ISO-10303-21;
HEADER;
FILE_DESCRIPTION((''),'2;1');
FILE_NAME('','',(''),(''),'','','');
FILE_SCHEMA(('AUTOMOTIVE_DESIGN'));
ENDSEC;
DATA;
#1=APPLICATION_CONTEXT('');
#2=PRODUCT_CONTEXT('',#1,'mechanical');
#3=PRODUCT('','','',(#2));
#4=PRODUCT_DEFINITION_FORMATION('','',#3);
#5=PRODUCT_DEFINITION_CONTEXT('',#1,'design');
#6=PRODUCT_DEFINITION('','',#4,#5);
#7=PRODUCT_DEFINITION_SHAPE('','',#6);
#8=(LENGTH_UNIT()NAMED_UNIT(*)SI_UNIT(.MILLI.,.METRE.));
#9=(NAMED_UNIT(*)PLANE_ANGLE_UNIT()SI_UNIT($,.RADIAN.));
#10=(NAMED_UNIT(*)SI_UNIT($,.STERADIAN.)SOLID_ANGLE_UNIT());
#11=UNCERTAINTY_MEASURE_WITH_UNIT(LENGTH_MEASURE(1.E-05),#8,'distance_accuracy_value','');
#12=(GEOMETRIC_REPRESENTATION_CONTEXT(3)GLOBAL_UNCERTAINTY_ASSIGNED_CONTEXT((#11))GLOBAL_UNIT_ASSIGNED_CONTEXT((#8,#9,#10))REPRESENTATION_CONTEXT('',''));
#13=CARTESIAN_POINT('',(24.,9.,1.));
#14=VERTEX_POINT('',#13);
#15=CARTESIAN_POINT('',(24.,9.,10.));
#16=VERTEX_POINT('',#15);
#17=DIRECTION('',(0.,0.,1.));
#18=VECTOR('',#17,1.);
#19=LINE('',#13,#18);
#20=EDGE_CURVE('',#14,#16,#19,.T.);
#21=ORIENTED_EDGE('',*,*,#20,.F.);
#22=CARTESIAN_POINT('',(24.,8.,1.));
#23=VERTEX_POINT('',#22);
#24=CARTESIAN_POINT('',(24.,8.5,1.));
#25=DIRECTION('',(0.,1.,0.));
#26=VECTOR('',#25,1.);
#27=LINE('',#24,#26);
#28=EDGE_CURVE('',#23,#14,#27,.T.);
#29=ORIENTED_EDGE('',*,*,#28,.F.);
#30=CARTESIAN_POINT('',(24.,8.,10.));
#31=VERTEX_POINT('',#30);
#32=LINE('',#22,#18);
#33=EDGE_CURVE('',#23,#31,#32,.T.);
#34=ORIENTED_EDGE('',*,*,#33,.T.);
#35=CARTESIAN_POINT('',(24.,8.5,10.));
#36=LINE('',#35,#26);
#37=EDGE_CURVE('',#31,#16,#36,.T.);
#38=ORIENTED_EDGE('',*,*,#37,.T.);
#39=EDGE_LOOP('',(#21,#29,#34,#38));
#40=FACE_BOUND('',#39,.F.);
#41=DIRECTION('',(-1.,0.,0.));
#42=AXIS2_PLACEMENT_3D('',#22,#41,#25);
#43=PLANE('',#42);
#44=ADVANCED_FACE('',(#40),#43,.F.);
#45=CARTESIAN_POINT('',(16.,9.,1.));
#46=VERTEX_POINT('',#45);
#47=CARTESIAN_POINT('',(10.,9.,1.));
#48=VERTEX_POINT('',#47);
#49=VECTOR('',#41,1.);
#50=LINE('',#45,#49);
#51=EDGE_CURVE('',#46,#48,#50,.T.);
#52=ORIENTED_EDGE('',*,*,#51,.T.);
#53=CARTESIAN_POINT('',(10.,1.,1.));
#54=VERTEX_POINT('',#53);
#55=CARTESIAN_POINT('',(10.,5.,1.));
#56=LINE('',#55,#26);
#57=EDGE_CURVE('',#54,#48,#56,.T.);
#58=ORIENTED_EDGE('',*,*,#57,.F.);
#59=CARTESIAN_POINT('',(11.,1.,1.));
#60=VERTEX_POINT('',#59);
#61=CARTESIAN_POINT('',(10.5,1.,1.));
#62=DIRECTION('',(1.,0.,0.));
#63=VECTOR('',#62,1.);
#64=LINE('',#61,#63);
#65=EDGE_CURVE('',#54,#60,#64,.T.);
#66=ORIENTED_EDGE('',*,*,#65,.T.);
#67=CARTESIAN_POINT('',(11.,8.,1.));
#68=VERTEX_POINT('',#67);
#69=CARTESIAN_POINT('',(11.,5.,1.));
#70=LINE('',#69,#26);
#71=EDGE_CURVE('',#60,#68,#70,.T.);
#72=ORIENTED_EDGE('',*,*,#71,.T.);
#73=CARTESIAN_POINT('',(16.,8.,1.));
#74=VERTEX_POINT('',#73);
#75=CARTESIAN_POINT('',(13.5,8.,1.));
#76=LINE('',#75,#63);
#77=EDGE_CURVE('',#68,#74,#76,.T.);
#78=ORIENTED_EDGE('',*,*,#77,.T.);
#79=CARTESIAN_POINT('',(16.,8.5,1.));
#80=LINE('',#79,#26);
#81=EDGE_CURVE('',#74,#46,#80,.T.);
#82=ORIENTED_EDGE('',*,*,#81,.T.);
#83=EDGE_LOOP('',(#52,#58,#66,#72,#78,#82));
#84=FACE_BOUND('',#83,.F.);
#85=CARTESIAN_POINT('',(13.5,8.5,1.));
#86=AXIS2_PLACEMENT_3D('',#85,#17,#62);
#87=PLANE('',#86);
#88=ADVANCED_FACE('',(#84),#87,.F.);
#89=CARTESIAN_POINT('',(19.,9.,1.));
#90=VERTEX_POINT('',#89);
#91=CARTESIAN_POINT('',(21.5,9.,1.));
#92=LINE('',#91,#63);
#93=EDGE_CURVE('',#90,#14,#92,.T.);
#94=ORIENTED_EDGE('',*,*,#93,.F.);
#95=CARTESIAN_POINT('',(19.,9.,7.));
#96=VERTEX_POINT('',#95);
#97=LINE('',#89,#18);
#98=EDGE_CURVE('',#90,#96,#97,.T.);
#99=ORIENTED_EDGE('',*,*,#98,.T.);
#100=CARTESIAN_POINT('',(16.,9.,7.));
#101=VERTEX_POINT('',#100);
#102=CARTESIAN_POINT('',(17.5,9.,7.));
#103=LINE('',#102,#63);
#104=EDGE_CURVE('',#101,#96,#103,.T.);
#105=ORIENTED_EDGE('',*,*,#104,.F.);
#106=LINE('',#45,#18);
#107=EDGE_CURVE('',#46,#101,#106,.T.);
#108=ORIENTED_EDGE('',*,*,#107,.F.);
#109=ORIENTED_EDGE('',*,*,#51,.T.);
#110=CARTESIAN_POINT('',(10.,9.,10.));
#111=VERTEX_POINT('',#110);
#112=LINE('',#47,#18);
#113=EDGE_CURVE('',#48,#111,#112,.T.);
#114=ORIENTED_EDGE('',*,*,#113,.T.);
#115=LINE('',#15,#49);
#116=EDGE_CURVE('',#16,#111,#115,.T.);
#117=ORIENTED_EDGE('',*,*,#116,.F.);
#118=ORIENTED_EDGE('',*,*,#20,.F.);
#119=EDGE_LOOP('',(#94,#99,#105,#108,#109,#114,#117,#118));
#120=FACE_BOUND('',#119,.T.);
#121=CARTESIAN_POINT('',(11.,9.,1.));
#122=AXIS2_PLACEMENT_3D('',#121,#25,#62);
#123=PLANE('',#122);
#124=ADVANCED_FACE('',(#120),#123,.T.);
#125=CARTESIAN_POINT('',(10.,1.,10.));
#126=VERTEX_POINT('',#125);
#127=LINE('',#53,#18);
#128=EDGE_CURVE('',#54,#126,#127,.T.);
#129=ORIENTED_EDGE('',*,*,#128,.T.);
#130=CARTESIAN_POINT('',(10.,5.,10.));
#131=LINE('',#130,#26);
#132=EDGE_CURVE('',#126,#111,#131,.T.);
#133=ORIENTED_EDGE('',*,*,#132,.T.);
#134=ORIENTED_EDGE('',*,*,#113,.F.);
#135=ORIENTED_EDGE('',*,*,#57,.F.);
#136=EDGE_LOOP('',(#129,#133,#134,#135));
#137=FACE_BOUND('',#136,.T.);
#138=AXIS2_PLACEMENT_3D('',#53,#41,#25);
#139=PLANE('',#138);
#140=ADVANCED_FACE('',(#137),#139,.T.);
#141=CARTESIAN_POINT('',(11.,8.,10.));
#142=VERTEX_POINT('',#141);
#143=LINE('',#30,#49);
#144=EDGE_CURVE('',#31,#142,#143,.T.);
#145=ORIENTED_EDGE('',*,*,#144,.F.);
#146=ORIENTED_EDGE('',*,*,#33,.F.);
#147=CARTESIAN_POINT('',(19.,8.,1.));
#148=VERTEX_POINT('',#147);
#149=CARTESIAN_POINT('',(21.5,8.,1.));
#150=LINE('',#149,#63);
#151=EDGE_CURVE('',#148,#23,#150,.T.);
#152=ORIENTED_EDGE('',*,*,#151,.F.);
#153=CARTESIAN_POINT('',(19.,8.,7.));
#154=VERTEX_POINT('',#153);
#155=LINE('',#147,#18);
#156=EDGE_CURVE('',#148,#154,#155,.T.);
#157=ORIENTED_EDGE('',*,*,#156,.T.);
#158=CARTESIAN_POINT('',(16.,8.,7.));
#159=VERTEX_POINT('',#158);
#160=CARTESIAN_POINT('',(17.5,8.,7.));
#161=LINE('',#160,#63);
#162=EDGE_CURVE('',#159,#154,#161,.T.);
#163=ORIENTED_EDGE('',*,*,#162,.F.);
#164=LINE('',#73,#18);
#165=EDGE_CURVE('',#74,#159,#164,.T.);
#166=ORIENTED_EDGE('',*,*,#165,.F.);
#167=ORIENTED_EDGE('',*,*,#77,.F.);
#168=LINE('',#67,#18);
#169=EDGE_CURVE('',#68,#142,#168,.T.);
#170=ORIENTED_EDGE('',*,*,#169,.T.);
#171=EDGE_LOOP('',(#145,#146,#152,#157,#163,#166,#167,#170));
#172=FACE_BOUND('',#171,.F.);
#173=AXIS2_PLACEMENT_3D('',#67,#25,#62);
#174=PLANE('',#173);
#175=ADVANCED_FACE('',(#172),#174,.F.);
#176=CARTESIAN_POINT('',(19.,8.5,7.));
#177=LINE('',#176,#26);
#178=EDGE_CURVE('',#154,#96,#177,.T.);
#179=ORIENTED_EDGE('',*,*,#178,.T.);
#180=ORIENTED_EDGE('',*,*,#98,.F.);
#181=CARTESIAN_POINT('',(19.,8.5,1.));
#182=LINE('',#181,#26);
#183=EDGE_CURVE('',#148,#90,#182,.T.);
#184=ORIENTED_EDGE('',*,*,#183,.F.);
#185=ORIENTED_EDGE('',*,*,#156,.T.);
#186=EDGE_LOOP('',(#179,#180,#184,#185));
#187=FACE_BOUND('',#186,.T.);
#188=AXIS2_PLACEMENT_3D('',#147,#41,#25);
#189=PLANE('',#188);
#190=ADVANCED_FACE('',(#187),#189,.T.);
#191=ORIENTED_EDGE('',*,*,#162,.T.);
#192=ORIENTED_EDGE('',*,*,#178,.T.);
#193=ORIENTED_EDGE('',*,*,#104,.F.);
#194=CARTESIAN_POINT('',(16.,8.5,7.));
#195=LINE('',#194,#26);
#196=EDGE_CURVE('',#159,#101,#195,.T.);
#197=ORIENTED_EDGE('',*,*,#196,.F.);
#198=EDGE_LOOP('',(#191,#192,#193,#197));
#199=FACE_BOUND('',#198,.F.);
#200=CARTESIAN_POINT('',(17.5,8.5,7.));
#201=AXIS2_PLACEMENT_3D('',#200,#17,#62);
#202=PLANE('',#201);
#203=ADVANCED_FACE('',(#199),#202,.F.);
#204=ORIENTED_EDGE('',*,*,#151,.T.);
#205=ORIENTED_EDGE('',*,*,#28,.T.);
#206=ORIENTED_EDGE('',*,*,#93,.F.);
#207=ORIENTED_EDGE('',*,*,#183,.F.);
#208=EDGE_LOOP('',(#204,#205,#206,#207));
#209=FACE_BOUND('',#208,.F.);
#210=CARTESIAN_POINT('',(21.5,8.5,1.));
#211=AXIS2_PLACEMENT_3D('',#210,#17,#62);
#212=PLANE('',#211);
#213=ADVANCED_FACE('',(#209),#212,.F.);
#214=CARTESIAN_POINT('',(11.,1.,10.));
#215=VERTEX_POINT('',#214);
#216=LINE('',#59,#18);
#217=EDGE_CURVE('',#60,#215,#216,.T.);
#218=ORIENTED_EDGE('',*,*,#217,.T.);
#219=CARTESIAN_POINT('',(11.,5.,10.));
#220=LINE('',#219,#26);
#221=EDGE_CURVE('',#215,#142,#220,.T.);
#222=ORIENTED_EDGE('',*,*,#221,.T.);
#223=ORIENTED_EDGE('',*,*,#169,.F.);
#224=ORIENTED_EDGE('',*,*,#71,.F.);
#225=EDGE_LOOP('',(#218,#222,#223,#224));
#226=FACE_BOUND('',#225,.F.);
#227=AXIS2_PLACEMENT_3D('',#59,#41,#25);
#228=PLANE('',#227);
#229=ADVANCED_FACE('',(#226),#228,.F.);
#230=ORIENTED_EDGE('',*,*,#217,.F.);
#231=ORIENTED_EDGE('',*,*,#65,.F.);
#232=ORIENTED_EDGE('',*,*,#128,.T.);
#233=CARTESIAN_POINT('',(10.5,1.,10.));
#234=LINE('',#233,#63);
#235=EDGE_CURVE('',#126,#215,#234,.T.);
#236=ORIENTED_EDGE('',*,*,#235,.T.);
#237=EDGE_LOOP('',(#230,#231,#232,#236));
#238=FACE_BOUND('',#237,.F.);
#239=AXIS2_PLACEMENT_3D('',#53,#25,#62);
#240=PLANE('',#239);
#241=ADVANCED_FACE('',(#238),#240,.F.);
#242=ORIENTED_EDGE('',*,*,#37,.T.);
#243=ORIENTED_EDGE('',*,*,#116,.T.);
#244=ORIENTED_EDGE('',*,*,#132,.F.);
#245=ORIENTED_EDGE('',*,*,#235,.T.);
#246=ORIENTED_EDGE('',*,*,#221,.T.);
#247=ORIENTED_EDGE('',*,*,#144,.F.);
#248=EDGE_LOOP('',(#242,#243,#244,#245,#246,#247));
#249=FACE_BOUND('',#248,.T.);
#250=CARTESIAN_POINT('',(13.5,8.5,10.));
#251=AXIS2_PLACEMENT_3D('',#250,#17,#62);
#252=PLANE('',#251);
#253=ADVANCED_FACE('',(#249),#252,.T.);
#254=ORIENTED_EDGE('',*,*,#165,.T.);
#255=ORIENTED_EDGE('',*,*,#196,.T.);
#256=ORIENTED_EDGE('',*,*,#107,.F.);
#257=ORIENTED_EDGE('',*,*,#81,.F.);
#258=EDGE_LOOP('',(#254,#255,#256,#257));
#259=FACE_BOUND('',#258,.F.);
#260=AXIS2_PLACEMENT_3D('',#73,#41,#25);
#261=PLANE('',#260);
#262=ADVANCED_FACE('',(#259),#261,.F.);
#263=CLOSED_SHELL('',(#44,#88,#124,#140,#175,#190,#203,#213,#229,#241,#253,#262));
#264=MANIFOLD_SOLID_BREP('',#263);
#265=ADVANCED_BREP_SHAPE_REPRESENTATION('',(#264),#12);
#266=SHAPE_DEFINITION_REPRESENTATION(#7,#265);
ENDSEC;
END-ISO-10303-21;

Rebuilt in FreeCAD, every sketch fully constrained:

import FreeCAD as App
import Part
import Sketcher
from FreeCAD import Vector

doc = App.newDocument("Part")
body = doc.addObject("PartDesign::Body", "Body")

# Sketch on XY plane
sketch1 = body.newObject("Sketcher::SketchObject", "Sketch")
sketch1.AttachmentSupport = (doc.getObject("XY_Plane"), [""])
sketch1.MapMode = "FlatFace"
sketch1.AttachmentOffset = App.Placement(Vector(0, 0, 1), App.Rotation())
sketch1.addGeometry([
    Part.LineSegment(Vector(19, 9, 0), Vector(19, 8, 0)),
    Part.LineSegment(Vector(19, 8, 0), Vector(24, 8, 0)),
    Part.LineSegment(Vector(24, 8, 0), Vector(24, 9, 0)),
    Part.LineSegment(Vector(24, 9, 0), Vector(19, 9, 0)),
], False)
sketch1.addConstraint([
    Sketcher.Constraint("Coincident", 0, 2, 1, 1),
    Sketcher.Constraint("Coincident", 1, 2, 2, 1),
    Sketcher.Constraint("Coincident", 2, 2, 3, 1),
    Sketcher.Constraint("Coincident", 3, 2, 0, 1),
    Sketcher.Constraint("Vertical", 0),
    Sketcher.Constraint("Horizontal", 1),
    Sketcher.Constraint("Vertical", 2),
    Sketcher.Constraint("Horizontal", 3),
    Sketcher.Constraint("DistanceX", 1, 1, 1, 2, 5.0),
    Sketcher.Constraint("DistanceY", 0, 2, 0, 1, 1.0),
    Sketcher.Constraint("DistanceX", -1, 1, 0, 2, 19.0),
    Sketcher.Constraint("DistanceY", -1, 1, 0, 2, 8.0),
])
pad1 = body.newObject("PartDesign::Pad", "Pad")
pad1.Profile = sketch1
pad1.Length = 9
body2 = doc.addObject("PartDesign::Body", "Body001")

# Sketch on XY plane
sketch2 = body2.newObject("Sketcher::SketchObject", "Sketch001")
sketch2.AttachmentSupport = (doc.getObject("XY_Plane001"), [""])
sketch2.MapMode = "FlatFace"
sketch2.AttachmentOffset = App.Placement(Vector(0, 0, 1), App.Rotation())
sketch2.addGeometry([
    Part.LineSegment(Vector(11, 9, 0), Vector(11, 8, 0)),
    Part.LineSegment(Vector(11, 8, 0), Vector(16, 8, 0)),
    Part.LineSegment(Vector(16, 8, 0), Vector(16, 9, 0)),
    Part.LineSegment(Vector(16, 9, 0), Vector(11, 9, 0)),
], False)
sketch2.addConstraint([
    Sketcher.Constraint("Coincident", 0, 2, 1, 1),
    Sketcher.Constraint("Coincident", 1, 2, 2, 1),
    Sketcher.Constraint("Coincident", 2, 2, 3, 1),
    Sketcher.Constraint("Coincident", 3, 2, 0, 1),
    Sketcher.Constraint("Vertical", 0),
    Sketcher.Constraint("Horizontal", 1),
    Sketcher.Constraint("Vertical", 2),
    Sketcher.Constraint("Horizontal", 3),
    Sketcher.Constraint("DistanceX", 1, 1, 1, 2, 5.0),
    Sketcher.Constraint("DistanceY", 0, 2, 0, 1, 1.0),
    Sketcher.Constraint("DistanceX", -1, 1, 0, 2, 11.0),
    Sketcher.Constraint("DistanceY", -1, 1, 0, 2, 8.0),
])
pad2 = body2.newObject("PartDesign::Pad", "Pad001")
pad2.Profile = sketch2
pad2.Length = 9
body3 = doc.addObject("PartDesign::Body", "Body002")

# Sketch on XY plane
sketch3 = body3.newObject("Sketcher::SketchObject", "Sketch002")
sketch3.AttachmentSupport = (doc.getObject("XY_Plane002"), [""])
sketch3.MapMode = "FlatFace"
sketch3.AttachmentOffset = App.Placement(Vector(0, 0, 7), App.Rotation())
sketch3.addGeometry([
    Part.LineSegment(Vector(16, 9, 0), Vector(16, 8, 0)),
    Part.LineSegment(Vector(16, 8, 0), Vector(19, 8, 0)),
    Part.LineSegment(Vector(19, 8, 0), Vector(19, 9, 0)),
    Part.LineSegment(Vector(19, 9, 0), Vector(16, 9, 0)),
], False)
sketch3.addConstraint([
    Sketcher.Constraint("Coincident", 0, 2, 1, 1),
    Sketcher.Constraint("Coincident", 1, 2, 2, 1),
    Sketcher.Constraint("Coincident", 2, 2, 3, 1),
    Sketcher.Constraint("Coincident", 3, 2, 0, 1),
    Sketcher.Constraint("Vertical", 0),
    Sketcher.Constraint("Horizontal", 1),
    Sketcher.Constraint("Vertical", 2),
    Sketcher.Constraint("Horizontal", 3),
    Sketcher.Constraint("DistanceX", 1, 1, 1, 2, 3.0),
    Sketcher.Constraint("DistanceY", 0, 2, 0, 1, 1.0),
    Sketcher.Constraint("DistanceX", -1, 1, 0, 2, 16.0),
    Sketcher.Constraint("DistanceY", -1, 1, 0, 2, 8.0),
])
pad3 = body3.newObject("PartDesign::Pad", "Pad002")
pad3.Profile = sketch3
pad3.Length = 3
doc.recompute()

boolean = body3.newObject("PartDesign::Boolean", "Boolean")
boolean.Type = "Fuse"
boolean.addObjects([body])
doc.recompute()

boolean2 = body3.newObject("PartDesign::Boolean", "Boolean001")
boolean2.Type = "Fuse"
boolean2.addObjects([body2])
body4 = doc.addObject("PartDesign::Body", "Body003")

# Sketch on XY plane
sketch4 = body4.newObject("Sketcher::SketchObject", "Sketch003")
sketch4.AttachmentSupport = (doc.getObject("XY_Plane003"), [""])
sketch4.MapMode = "FlatFace"
sketch4.AttachmentOffset = App.Placement(Vector(0, 0, 1), App.Rotation())
sketch4.addGeometry([
    Part.LineSegment(Vector(10, 9, 0), Vector(10, 1, 0)),
    Part.LineSegment(Vector(10, 1, 0), Vector(11, 1, 0)),
    Part.LineSegment(Vector(11, 1, 0), Vector(11, 9, 0)),
    Part.LineSegment(Vector(11, 9, 0), Vector(10, 9, 0)),
], False)
sketch4.addConstraint([
    Sketcher.Constraint("Coincident", 0, 2, 1, 1),
    Sketcher.Constraint("Coincident", 1, 2, 2, 1),
    Sketcher.Constraint("Coincident", 2, 2, 3, 1),
    Sketcher.Constraint("Coincident", 3, 2, 0, 1),
    Sketcher.Constraint("Vertical", 0),
    Sketcher.Constraint("Horizontal", 1),
    Sketcher.Constraint("Vertical", 2),
    Sketcher.Constraint("Horizontal", 3),
    Sketcher.Constraint("DistanceX", 1, 1, 1, 2, 1.0),
    Sketcher.Constraint("DistanceY", 0, 2, 0, 1, 8.0),
    Sketcher.Constraint("DistanceX", -1, 1, 0, 2, 10.0),
    Sketcher.Constraint("DistanceY", -1, 1, 0, 2, 1.0),
])
pad4 = body4.newObject("PartDesign::Pad", "Pad003")
pad4.Profile = sketch4
pad4.Length = 9
doc.recompute()

boolean3 = body4.newObject("PartDesign::Boolean", "Boolean002")
boolean3.Type = "Fuse"
boolean3.addObjects([body3])

doc.recompute()
